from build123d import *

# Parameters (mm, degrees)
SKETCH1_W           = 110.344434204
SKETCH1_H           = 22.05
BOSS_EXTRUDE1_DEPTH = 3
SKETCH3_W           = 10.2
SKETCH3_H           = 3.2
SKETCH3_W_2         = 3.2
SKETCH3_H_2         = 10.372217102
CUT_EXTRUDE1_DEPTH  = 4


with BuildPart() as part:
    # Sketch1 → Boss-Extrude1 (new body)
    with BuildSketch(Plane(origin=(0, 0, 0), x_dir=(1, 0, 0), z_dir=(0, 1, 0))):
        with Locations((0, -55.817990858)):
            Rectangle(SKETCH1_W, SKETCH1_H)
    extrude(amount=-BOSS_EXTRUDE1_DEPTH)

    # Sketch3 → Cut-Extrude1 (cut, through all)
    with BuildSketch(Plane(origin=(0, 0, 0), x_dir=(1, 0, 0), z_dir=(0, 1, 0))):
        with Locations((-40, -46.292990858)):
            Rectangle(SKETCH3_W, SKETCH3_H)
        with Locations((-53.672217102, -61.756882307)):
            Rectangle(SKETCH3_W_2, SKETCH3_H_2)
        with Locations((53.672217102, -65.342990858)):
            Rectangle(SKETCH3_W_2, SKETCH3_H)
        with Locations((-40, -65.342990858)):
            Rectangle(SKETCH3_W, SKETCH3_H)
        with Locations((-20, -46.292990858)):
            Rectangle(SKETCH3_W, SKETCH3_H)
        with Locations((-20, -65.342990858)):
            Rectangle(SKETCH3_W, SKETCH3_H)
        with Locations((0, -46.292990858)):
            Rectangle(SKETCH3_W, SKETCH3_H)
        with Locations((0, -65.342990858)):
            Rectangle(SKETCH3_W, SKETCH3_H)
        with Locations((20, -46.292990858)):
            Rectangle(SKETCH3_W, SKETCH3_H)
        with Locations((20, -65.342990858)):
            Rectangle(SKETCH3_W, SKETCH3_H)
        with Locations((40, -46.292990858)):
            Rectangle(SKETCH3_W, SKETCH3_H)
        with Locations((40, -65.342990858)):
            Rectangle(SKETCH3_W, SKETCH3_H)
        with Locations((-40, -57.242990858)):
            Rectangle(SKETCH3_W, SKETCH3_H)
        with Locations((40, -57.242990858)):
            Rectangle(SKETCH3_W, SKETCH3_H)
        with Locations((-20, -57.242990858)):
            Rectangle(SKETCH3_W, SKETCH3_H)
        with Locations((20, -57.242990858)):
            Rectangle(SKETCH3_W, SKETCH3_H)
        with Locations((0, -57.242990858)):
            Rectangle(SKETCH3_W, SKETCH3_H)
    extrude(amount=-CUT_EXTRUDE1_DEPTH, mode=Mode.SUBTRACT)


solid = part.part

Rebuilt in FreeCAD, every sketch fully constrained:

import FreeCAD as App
import Part
import Sketcher
Q = App.Units.Quantity


def add_polygon(sketch, points):
    """Adds a closed chain of lines whose ends are joined by coincident constraints."""
    first, n = sketch.GeometryCount, len(points)
    for a, b in zip(points, points[1:] + points[:1]):
        sketch.addGeometry(Part.LineSegment(App.Vector(*a, 0), App.Vector(*b, 0)), False)
    for i in range(n):
        sketch.addConstraint(Sketcher.Constraint("Coincident", first + i, 2, first + (i + 1) % n, 1))

doc = App.newDocument("Part")
params = doc.addObject("Spreadsheet::Sheet", "Params")
for row, (alias, value) in enumerate([
    ("sketch1_height", "22.05 mm"),
    ("pad1_length", "3 mm"),
    ("sketch2_width", "10.2 mm"),
    ("sketch2_width2", "3.2 mm"),
], start=1):
    params.set(f"A{row}", alias)
    params.set(f"B{row}", "=" + value)
    params.setAlias(f"B{row}", alias)

body = doc.addObject("PartDesign::Body", "Body")

# Sketch on XZ plane
sketch1 = body.newObject("Sketcher::SketchObject", "Sketch")
sketch1.AttachmentSupport = (doc.getObject("XZ_Plane"), [""])
sketch1.MapMode = "FlatFace"
add_polygon(sketch1, [(-55.172217, 44.792991), (-55.172217, 66.842991), (55.172217, 66.842991), (55.172217, 44.792991)])  # lines 0-3
sketch1.addConstraint(Sketcher.Constraint("Vertical", 0))
sketch1.addConstraint(Sketcher.Constraint("Horizontal", 1))
sketch1.addConstraint(Sketcher.Constraint("Vertical", 2))
sketch1.addConstraint(Sketcher.Constraint("Horizontal", 3))
sketch1.addConstraint(Sketcher.Constraint("DistanceY", 0, 1, 0, 2, Q("22.05 mm")))
sketch1.addConstraint(Sketcher.Constraint("DistanceX", 1, 1, 1, 2, Q("110.344434 mm")))
sketch1.addConstraint(Sketcher.Constraint("DistanceY", -1, 1, 0, 2, Q("66.842991 mm")))
sketch1.addConstraint(Sketcher.Constraint("DistanceX", 0, 2, -1, 1, Q("55.172217 mm")))
sketch1.setExpression("Constraints[8]", "Params.sketch1_height")
pad1 = body.newObject("PartDesign::Pad", "Pad")
pad1.Profile = sketch1
pad1.setExpression("Length", "Params.pad1_length")

# Sketch on XZ plane
sketch2 = body.newObject("Sketcher::SketchObject", "Sketch001")
sketch2.AttachmentSupport = (doc.getObject("XZ_Plane"), [""])
sketch2.MapMode = "FlatFace"
add_polygon(sketch2, [(-45.1, 44.692991), (-45.1, 47.892991), (-34.9, 47.892991), (-34.9, 44.692991)])  # lines 0-3
add_polygon(sketch2, [(-55.272217, 56.570774), (-55.272217, 66.942991), (-52.072217, 66.942991), (-52.072217, 56.570774)])  # lines 4-7
add_polygon(sketch2, [(52.072217, 63.742991), (52.072217, 66.942991), (55.272217, 66.942991), (55.272217, 63.742991)])  # lines 8-11
add_polygon(sketch2, [(-45.1, 63.742991), (-45.1, 66.942991), (-34.9, 66.942991), (-34.9, 63.742991)])  # lines 12-15
add_polygon(sketch2, [(-25.1, 44.692991), (-25.1, 47.892991), (-14.9, 47.892991), (-14.9, 44.692991)])  # lines 16-19
add_polygon(sketch2, [(-25.1, 63.742991), (-25.1, 66.942991), (-14.9, 66.942991), (-14.9, 63.742991)])  # lines 20-23
add_polygon(sketch2, [(-5.1, 44.692991), (-5.1, 47.892991), (5.1, 47.892991), (5.1, 44.692991)])  # lines 24-27
add_polygon(sketch2, [(-5.1, 63.742991), (-5.1, 66.942991), (5.1, 66.942991), (5.1, 63.742991)])  # lines 28-31
add_polygon(sketch2, [(14.9, 44.692991), (14.9, 47.892991), (25.1, 47.892991), (25.1, 44.692991)])  # lines 32-35
add_polygon(sketch2, [(14.9, 63.742991), (14.9, 66.942991), (25.1, 66.942991), (25.1, 63.742991)])  # lines 36-39
add_polygon(sketch2, [(34.9, 44.692991), (34.9, 47.892991), (45.1, 47.892991), (45.1, 44.692991)])  # lines 40-43
add_polygon(sketch2, [(34.9, 63.742991), (34.9, 66.942991), (45.1, 66.942991), (45.1, 63.742991)])  # lines 44-47
add_polygon(sketch2, [(-45.1, 55.642991), (-45.1, 58.842991), (-34.9, 58.842991), (-34.9, 55.642991)])  # lines 48-51
add_polygon(sketch2, [(34.9, 55.642991), (34.9, 58.842991), (45.1, 58.842991), (45.1, 55.642991)])  # lines 52-55
add_polygon(sketch2, [(-25.1, 55.642991), (-25.1, 58.842991), (-14.9, 58.842991), (-14.9, 55.642991)])  # lines 56-59
add_polygon(sketch2, [(14.9, 55.642991), (14.9, 58.842991), (25.1, 58.842991), (25.1, 55.642991)])  # lines 60-63
add_polygon(sketch2, [(-5.1, 55.642991), (-5.1, 58.842991), (5.1, 58.842991), (5.1, 55.642991)])  # lines 64-67
sketch2.addConstraint(Sketcher.Constraint("Vertical", 0))
sketch2.addConstraint(Sketcher.Constraint("Horizontal", 1))
sketch2.addConstraint(Sketcher.Constraint("Vertical", 2))
sketch2.addConstraint(Sketcher.Constraint("Horizontal", 3))
sketch2.addConstraint(Sketcher.Constraint("Vertical", 4))
sketch2.addConstraint(Sketcher.Constraint("Horizontal", 5))
sketch2.addConstraint(Sketcher.Constraint("Vertical", 6))
sketch2.addConstraint(Sketcher.Constraint("Horizontal", 7))
sketch2.addConstraint(Sketcher.Constraint("Vertical", 8))
sketch2.addConstraint(Sketcher.Constraint("Horizontal", 9))
sketch2.addConstraint(Sketcher.Constraint("Vertical", 10))
sketch2.addConstraint(Sketcher.Constraint("Horizontal", 11))
sketch2.addConstraint(Sketcher.Constraint("Vertical", 12))
sketch2.addConstraint(Sketcher.Constraint("Horizontal", 13))
sketch2.addConstraint(Sketcher.Constraint("Vertical", 14))
sketch2.addConstraint(Sketcher.Constraint("Horizontal", 15))
sketch2.addConstraint(Sketcher.Constraint("Vertical", 16))
sketch2.addConstraint(Sketcher.Constraint("Horizontal", 17))
sketch2.addConstraint(Sketcher.Constraint("Vertical", 18))
sketch2.addConstraint(Sketcher.Constraint("Horizontal", 19))
sketch2.addConstraint(Sketcher.Constraint("Vertical", 20))
sketch2.addConstraint(Sketcher.Constraint("Horizontal", 21))
sketch2.addConstraint(Sketcher.Constraint("Vertical", 22))
sketch2.addConstraint(Sketcher.Constraint("Horizontal", 23))
sketch2.addConstraint(Sketcher.Constraint("Vertical", 24))
sketch2.addConstraint(Sketcher.Constraint("Horizontal", 25))
sketch2.addConstraint(Sketcher.Constraint("Vertical", 26))
sketch2.addConstraint(Sketcher.Constraint("Horizontal", 27))
sketch2.addConstraint(Sketcher.Constraint("Vertical", 28))
sketch2.addConstraint(Sketcher.Constraint("Horizontal", 29))
sketch2.addConstraint(Sketcher.Constraint("Vertical", 30))
sketch2.addConstraint(Sketcher.Constraint("Horizontal", 31))
sketch2.addConstraint(Sketcher.Constraint("Vertical", 32))
sketch2.addConstraint(Sketcher.Constraint("Horizontal", 33))
sketch2.addConstraint(Sketcher.Constraint("Vertical", 34))
sketch2.addConstraint(Sketcher.Constraint("Horizontal", 35))
sketch2.addConstraint(Sketcher.Constraint("Vertical", 36))
sketch2.addConstraint(Sketcher.Constraint("Horizontal", 37))
sketch2.addConstraint(Sketcher.Constraint("Vertical", 38))
sketch2.addConstraint(Sketcher.Constraint("Horizontal", 39))
sketch2.addConstraint(Sketcher.Constraint("Vertical", 40))
sketch2.addConstraint(Sketcher.Constraint("Horizontal", 41))
sketch2.addConstraint(Sketcher.Constraint("Vertical", 42))
sketch2.addConstraint(Sketcher.Constraint("Horizontal", 43))
sketch2.addConstraint(Sketcher.Constraint("Vertical", 44))
sketch2.addConstraint(Sketcher.Constraint("Horizontal", 45))
sketch2.addConstraint(Sketcher.Constraint("Vertical", 46))
sketch2.addConstraint(Sketcher.Constraint("Horizontal", 47))
sketch2.addConstraint(Sketcher.Constraint("Vertical", 48))
sketch2.addConstraint(Sketcher.Constraint("Horizontal", 49))
sketch2.addConstraint(Sketcher.Constraint("Vertical", 50))
sketch2.addConstraint(Sketcher.Constraint("Horizontal", 51))
sketch2.addConstraint(Sketcher.Constraint("Vertical", 52))
sketch2.addConstraint(Sketcher.Constraint("Horizontal", 53))
sketch2.addConstraint(Sketcher.Constraint("Vertical", 54))
sketch2.addConstraint(Sketcher.Constraint("Horizontal", 55))
sketch2.addConstraint(Sketcher.Constraint("Vertical", 56))
sketch2.addConstraint(Sketcher.Constraint("Horizontal", 57))
sketch2.addConstraint(Sketcher.Constraint("Vertical", 58))
sketch2.addConstraint(Sketcher.Constraint("Horizontal", 59))
sketch2.addConstraint(Sketcher.Constraint("Vertical", 60))
sketch2.addConstraint(Sketcher.Constraint("Horizontal", 61))
sketch2.addConstraint(Sketcher.Constraint("Vertical", 62))
sketch2.addConstraint(Sketcher.Constraint("Horizontal", 63))
sketch2.addConstraint(Sketcher.Constraint("Vertical", 64))
sketch2.addConstraint(Sketcher.Constraint("Horizontal", 65))
sketch2.addConstraint(Sketcher.Constraint("Vertical", 66))
sketch2.addConstraint(Sketcher.Constraint("Horizontal", 67))
sketch2.addConstraint(Sketcher.Constraint("Symmetric", 5, 2, 8, 2, -2))
sketch2.addConstraint(Sketcher.Constraint("Symmetric", 17, 2, 32, 2, -2))
sketch2.addConstraint(Sketcher.Constraint("Symmetric", 19, 2, 34, 2, -2))
sketch2.addConstraint(Sketcher.Constraint("Symmetric", 21, 2, 36, 2, -2))
sketch2.addConstraint(Sketcher.Constraint("Symmetric", 23, 2, 38, 2, -2))
sketch2.addConstraint(Sketcher.Constraint("Symmetric", 1, 2, 40, 2, -2))
sketch2.addConstraint(Sketcher.Constraint("Symmetric", 3, 2, 42, 2, -2))
sketch2.addConstraint(Sketcher.Constraint("Symmetric", 13, 2, 44, 2, -2))
sketch2.addConstraint(Sketcher.Constraint("Symmetric", 15, 2, 46, 2, -2))
sketch2.addConstraint(Sketcher.Constraint("Symmetric", 49, 2, 52, 2, -2))
sketch2.addConstraint(Sketcher.Constraint("Symmetric", 51, 2, 54, 2, -2))
sketch2.addConstraint(Sketcher.Constraint("Symmetric", 57, 2, 60, 2, -2))
sketch2.addConstraint(Sketcher.Constraint("Symmetric", 59, 2, 62, 2, -2))
sketch2.addConstraint(Sketcher.Constraint("Horizontal", 9, 2, 12, 2))
sketch2.addConstraint(Sketcher.Constraint("Horizontal", 11, 2, 14, 2))
sketch2.addConstraint(Sketcher.Constraint("Horizontal", 1, 2, 16, 2))
sketch2.addConstraint(Sketcher.Constraint("Horizontal", 3, 2, 18, 2))
sketch2.addConstraint(Sketcher.Constraint("Horizontal", 13, 2, 20, 2))
sketch2.addConstraint(Sketcher.Constraint("Horizontal", 15, 2, 22, 2))
sketch2.addConstraint(Sketcher.Constraint("Horizontal", 17, 2, 24, 2))
sketch2.addConstraint(Sketcher.Constraint("Horizontal", 19, 2, 26, 2))
sketch2.addConstraint(Sketcher.Constraint("Horizontal", 21, 2, 28, 2))
sketch2.addConstraint(Sketcher.Constraint("Horizontal", 23, 2, 30, 2))
sketch2.addConstraint(Sketcher.Constraint("Horizontal", 53, 2, 56, 2))
sketch2.addConstraint(Sketcher.Constraint("Horizontal", 55, 2, 58, 2))
sketch2.addConstraint(Sketcher.Constraint("Horizontal", 61, 2, 64, 2))
sketch2.addConstraint(Sketcher.Constraint("Horizontal", 63, 2, 66, 2))
sketch2.addConstraint(Sketcher.Constraint("Vertical", 3, 2, 12, 2))
sketch2.addConstraint(Sketcher.Constraint("Vertical", 2, 2, 13, 2))
sketch2.addConstraint(Sketcher.Constraint("Vertical", 19, 2, 20, 2))
sketch2.addConstraint(Sketcher.Constraint("Vertical", 18, 2, 21, 2))
sketch2.addConstraint(Sketcher.Constraint("Vertical", 27, 2, 28, 2))
sketch2.addConstraint(Sketcher.Constraint("Vertical", 26, 2, 29, 2))
sketch2.addConstraint(Sketcher.Constraint("Vertical", 15, 2, 48, 2))
sketch2.addConstraint(Sketcher.Constraint("Vertical", 14, 2, 49, 2))
sketch2.addConstraint(Sketcher.Constraint("Vertical", 23, 2, 56, 2))
sketch2.addConstraint(Sketcher.Constraint("Vertical", 22, 2, 57, 2))
sketch2.addConstraint(Sketcher.Constraint("Vertical", 31, 2, 64, 2))
sketch2.addConstraint(Sketcher.Constraint("Vertical", 30, 2, 65, 2))
sketch2.addConstraint(Sketcher.Constraint("Equal", 7, 9))
sketch2.addConstraint(Sketcher.Constraint("Equal", 15, 17))
sketch2.addConstraint(Sketcher.Constraint("Equal", 23, 25))
sketch2.addConstraint(Sketcher.Constraint("Equal", 11, 0))
sketch2.addConstraint(Sketcher.Constraint("Equal", 2, 8))
sketch2.addConstraint(Sketcher.Constraint("Equal", 46, 48))
sketch2.addConstraint(Sketcher.Constraint("DistanceX", 1, 1, 1, 2, Q("10.2 mm")))
sketch2.addConstraint(Sketcher.Constraint("DistanceX", 5, 1, 5, 2, Q("3.2 mm")))
sketch2.addConstraint(Sketcher.Constraint("DistanceX", 0, 2, -1, 1, Q("45.1 mm")))
sketch2.addConstraint(Sketcher.Constraint("DistanceX", 16, 2, -1, 1, Q("25.1 mm")))
sketch2.addConstraint(Sketcher.Constraint("DistanceX", 24, 2, -1, 1, Q("5.1 mm")))
sketch2.addConstraint(Sketcher.Constraint("DistanceY", 4, 1, 4, 2, Q("10.372217 mm")))
sketch2.addConstraint(Sketcher.Constraint("DistanceY", -1, 1, 0, 2, Q("47.892991 mm")))
sketch2.addConstraint(Sketcher.Constraint("DistanceY", -1, 1, 4, 2, Q("66.942991 mm")))
sketch2.addConstraint(Sketcher.Constraint("DistanceY", -1, 1, 48, 2, Q("58.842991 mm")))
sketch2.addConstraint(Sketcher.Constraint("DistanceX", 4, 2, -1, 1, Q("55.272217 mm")))
sketch2.setExpression("Constraints[181]", "Params.sketch2_width")
sketch2.setExpression("Constraints[182]", "Params.sketch2_width2")
pocket1 = body.newObject("PartDesign::Pocket", "Pocket")
pocket1.Profile = sketch2
pocket1.Type = "ThroughAll"
pocket1.Reversed = True

doc.recompute()
